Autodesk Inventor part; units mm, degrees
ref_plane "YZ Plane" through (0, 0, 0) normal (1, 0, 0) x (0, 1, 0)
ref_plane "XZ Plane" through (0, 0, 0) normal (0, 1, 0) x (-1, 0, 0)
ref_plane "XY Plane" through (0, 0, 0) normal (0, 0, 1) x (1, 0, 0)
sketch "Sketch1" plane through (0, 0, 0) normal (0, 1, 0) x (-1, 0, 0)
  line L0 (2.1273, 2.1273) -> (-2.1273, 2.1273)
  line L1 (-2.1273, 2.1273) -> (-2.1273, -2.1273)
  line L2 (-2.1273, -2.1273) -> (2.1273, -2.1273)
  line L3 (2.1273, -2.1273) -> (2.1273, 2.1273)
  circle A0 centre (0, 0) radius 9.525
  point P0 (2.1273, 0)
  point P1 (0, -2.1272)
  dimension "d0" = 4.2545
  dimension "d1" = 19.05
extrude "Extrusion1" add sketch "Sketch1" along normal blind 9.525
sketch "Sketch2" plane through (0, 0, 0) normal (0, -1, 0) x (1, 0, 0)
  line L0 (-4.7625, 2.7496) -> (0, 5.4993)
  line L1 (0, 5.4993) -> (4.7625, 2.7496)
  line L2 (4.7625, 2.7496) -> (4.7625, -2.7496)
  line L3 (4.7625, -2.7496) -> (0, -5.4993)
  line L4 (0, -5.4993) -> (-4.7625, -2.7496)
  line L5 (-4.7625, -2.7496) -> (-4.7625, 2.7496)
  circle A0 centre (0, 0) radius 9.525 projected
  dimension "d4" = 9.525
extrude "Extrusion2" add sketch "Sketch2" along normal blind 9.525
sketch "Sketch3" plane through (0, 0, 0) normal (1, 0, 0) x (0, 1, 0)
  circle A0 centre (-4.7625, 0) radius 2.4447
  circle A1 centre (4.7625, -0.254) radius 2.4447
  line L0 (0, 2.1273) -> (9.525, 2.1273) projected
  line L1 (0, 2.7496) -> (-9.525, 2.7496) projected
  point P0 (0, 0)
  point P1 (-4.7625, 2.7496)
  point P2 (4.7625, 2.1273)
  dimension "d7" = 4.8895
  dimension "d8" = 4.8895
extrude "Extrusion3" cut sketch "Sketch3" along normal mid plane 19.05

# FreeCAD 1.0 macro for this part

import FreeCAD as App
import Part
import Sketcher
Q = App.Units.Quantity


def add_polygon(sketch, points):
    """Adds a closed chain of lines whose ends are joined by coincident constraints."""
    first, n = sketch.GeometryCount, len(points)
    for a, b in zip(points, points[1:] + points[:1]):
        sketch.addGeometry(Part.LineSegment(App.Vector(*a, 0), App.Vector(*b, 0)), False)
    for i in range(n):
        sketch.addConstraint(Sketcher.Constraint("Coincident", first + i, 2, first + (i + 1) % n, 1))

doc = App.newDocument("Part")
body = doc.addObject("PartDesign::Body", "Body")

sketch1 = body.newObject("Sketcher::SketchObject", "Sketch")
sketch1.AttachmentSupport = (doc.getObject("XZ_Plane"), [""])
sketch1.MapMode = "FlatFace"
sketch1.addGeometry(Part.Circle(App.Vector(0, 0, 0), App.Vector(0, 0, 1), 9.525), False)
add_polygon(sketch1, [(2.1273, 2.1273), (-2.1273, 2.1273), (-2.1273, -2.1273), (2.1273, -2.1273)])
sketch1.addConstraint([
    Sketcher.Constraint("Horizontal", 1),
    Sketcher.Constraint("Vertical", 2),
    Sketcher.Constraint("Horizontal", 3),
    Sketcher.Constraint("Vertical", 4),
    Sketcher.Constraint("Coincident", 0, 3, -1, 1),
    Sketcher.Constraint("Symmetric", 1, 2, 3, 2, -1, 1),
    Sketcher.Constraint("Equal", 3, 2),
    Sketcher.Constraint("Diameter", 0, Q("0.75 in")),
    Sketcher.Constraint("DistanceX", 1, 2, 1, 1, Q("0.1675 in")),
])
pad1 = body.newObject("PartDesign::Pad", "Pad")
pad1.Profile = sketch1
pad1.Length = Q("0.375 in")
pad1.Reversed = True

sketch2 = body.newObject("Sketcher::SketchObject", "Sketch001")
sketch2.AttachmentSupport = (doc.getObject("XZ_Plane"), [""])
sketch2.MapMode = "FlatFace"
sketch2.addGeometry(Part.Circle(App.Vector(0, 0, 0), App.Vector(0, 0, 1), 9.525), False)
add_polygon(sketch2, [(-4.7625, -2.7496), (-4.7625, 2.7496), (0, 5.4993), (4.7625, 2.7496), (4.7625, -2.7496), (0, -5.4993)])
sketch2.addConstraint([
    Sketcher.Constraint("Vertical", 1),
    Sketcher.Constraint("Vertical", 4),
    Sketcher.Constraint("Coincident", 0, 3, -1, 1),
    Sketcher.Constraint("Symmetric", 1, 2, 4, 2, -1, 1),
    Sketcher.Constraint("Symmetric", 2, 2, 5, 2, -1, 1),
    Sketcher.Constraint("PointOnObject", 2, 2, -2),
    Sketcher.Constraint("Parallel", 3, 6),
    Sketcher.Constraint("Horizontal", 1, 2, 3, 2),
    Sketcher.Constraint("Diameter", 0, Q("0.75 in")),
    Sketcher.Constraint("Angle", 2, Q("30.0006 deg")),
    Sketcher.Constraint("DistanceX", 1, 2, 3, 2, Q("0.375 in")),
    Sketcher.Constraint("DistanceY", 1, 1, 1, 2, Q("0.2165 in")),
])
pad2 = body.newObject("PartDesign::Pad", "Pad001")
pad2.Profile = sketch2
pad2.Length = Q("0.375 in")

sketch3 = body.newObject("Sketcher::SketchObject", "Sketch002")
sketch3.AttachmentSupport = (doc.getObject("YZ_Plane"), [""])
sketch3.MapMode = "FlatFace"
sketch3.addGeometry([
    Part.Circle(App.Vector(-4.7625, 0, 0), App.Vector(0, 0, 1), 2.4447),
    Part.Circle(App.Vector(4.7625, -0.254, 0), App.Vector(0, 0, 1), 2.4447),
], False)
sketch3.addConstraint([
    Sketcher.Constraint("Equal", 0, 1),
    Sketcher.Constraint("PointOnObject", 0, 3, -1),
    Sketcher.Constraint("Diameter", 0, Q("0.1925 in")),
    Sketcher.Constraint("DistanceY", 1, 3, -1, 1, Q("0.01 in")),
    Sketcher.Constraint("DistanceX", 0, 3, -1, 1, Q("0.1875 in")),
    Sketcher.Constraint("DistanceX", -1, 1, 1, 3, Q("0.1875 in")),
])
pocket1 = body.newObject("PartDesign::Pocket", "Pocket")
pocket1.Profile = sketch3
pocket1.Length = Q("0.75 in")
pocket1.Midplane = True

doc.recompute()
